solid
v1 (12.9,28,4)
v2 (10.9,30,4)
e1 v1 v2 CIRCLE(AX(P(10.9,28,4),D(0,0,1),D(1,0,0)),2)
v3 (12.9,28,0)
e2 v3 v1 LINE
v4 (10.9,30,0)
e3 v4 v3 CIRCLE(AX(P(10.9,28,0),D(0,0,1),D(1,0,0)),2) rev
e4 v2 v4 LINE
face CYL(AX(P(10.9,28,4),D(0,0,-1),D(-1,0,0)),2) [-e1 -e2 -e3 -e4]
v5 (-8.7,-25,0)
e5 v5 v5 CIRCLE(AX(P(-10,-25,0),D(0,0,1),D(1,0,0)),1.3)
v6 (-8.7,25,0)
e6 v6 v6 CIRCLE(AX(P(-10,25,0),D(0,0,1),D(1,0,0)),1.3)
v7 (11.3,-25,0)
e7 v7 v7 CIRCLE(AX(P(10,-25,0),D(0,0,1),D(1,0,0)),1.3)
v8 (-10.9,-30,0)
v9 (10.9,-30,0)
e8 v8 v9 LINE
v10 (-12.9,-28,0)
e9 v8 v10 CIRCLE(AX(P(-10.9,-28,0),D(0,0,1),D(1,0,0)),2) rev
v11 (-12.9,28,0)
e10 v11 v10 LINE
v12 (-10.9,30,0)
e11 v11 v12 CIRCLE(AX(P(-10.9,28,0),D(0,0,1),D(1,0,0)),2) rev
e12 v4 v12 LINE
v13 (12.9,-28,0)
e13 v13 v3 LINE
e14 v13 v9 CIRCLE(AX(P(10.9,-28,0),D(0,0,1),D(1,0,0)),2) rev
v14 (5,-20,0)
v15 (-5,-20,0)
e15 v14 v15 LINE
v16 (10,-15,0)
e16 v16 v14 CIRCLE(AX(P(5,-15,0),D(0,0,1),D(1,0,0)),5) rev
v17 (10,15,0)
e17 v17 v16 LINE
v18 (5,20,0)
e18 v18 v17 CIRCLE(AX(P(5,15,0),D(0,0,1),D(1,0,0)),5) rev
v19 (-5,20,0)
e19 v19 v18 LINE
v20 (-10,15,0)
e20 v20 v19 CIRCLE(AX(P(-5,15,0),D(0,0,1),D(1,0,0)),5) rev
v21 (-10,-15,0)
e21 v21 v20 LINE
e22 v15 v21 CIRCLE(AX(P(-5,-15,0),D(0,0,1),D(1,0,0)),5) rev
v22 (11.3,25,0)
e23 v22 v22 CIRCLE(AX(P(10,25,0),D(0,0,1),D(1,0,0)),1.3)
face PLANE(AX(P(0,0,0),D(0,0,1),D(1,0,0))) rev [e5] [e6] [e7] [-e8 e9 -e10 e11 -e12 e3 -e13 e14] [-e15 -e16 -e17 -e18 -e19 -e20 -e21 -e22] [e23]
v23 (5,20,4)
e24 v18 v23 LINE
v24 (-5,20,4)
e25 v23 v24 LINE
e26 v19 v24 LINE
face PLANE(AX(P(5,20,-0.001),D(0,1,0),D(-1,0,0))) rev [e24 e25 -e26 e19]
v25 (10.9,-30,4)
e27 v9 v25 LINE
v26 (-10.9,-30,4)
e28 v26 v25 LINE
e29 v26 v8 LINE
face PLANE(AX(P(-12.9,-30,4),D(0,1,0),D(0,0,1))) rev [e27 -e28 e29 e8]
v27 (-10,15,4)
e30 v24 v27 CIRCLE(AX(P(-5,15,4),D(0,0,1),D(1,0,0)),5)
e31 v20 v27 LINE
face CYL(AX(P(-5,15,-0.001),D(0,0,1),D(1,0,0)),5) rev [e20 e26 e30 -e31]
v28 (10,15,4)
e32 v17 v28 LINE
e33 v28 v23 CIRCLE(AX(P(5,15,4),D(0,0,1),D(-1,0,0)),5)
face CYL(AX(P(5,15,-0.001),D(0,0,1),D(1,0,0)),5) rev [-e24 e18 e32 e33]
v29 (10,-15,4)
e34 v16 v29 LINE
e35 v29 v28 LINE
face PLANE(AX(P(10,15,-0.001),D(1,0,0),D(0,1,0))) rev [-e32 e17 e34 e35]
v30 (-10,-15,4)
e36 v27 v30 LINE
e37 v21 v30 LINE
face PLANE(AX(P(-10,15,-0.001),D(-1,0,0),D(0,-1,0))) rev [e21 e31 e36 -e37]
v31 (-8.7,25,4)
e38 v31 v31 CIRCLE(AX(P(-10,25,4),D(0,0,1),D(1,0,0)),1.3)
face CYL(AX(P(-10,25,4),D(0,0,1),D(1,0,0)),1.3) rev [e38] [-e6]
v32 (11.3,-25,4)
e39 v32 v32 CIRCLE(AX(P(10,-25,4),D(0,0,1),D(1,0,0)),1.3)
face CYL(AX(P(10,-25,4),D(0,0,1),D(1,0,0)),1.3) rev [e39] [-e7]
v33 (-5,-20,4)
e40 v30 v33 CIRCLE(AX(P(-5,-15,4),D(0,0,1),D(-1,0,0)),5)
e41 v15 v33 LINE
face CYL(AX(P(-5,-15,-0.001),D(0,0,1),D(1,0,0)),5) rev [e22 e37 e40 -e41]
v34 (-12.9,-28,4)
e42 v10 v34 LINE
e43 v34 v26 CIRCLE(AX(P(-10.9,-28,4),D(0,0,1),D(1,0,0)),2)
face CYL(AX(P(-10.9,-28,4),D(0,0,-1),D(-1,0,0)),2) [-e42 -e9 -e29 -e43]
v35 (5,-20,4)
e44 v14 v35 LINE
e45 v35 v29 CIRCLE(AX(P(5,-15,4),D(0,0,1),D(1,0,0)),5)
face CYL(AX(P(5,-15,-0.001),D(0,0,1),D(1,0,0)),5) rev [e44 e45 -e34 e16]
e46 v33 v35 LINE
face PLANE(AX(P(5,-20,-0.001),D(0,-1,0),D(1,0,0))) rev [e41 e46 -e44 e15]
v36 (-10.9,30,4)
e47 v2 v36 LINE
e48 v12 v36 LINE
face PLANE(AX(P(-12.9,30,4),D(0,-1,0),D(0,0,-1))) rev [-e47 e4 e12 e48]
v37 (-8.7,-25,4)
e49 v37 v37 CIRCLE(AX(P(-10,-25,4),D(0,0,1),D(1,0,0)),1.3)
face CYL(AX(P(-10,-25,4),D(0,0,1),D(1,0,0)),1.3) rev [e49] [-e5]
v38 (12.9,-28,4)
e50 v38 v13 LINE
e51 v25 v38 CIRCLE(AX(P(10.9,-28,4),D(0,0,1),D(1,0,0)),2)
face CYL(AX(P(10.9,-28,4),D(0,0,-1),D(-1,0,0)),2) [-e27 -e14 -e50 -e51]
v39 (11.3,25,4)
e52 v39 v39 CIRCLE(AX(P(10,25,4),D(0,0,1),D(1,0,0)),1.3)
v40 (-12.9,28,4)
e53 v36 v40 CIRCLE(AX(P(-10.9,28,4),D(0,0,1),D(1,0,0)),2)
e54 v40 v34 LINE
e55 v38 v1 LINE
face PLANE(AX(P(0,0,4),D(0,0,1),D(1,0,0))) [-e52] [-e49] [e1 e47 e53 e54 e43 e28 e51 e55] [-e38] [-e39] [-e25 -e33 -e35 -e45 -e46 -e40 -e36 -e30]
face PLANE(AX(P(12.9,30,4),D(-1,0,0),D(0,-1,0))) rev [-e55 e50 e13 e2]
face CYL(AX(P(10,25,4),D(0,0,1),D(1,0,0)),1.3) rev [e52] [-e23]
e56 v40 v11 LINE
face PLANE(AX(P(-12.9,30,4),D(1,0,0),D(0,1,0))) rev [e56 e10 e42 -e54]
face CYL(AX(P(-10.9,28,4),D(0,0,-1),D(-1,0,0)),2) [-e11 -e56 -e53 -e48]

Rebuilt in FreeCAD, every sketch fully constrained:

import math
import FreeCAD as App
import Part
import Sketcher


def edges_at(feature, points):
    """Names of the edges that pass closest to the given points."""
    edges = feature.Shape.Edges
    near = lambda p: min(range(len(edges)), key=lambda i: edges[i].distToShape(Part.Vertex(*p))[0])
    return sorted({f"Edge{near(p) + 1}" for p in points})

doc = App.newDocument("Part")
params = doc.addObject("Spreadsheet::Sheet", "Params")
for row, (alias, value) in enumerate([
    ("sketch1_height", "60 mm"),
    ("sketch1_width", "25.8 mm"),
    ("pad1_length", "4 mm"),
    ("sketch2_diameter", "2.6 mm"),
    ("hole_diameter", "2.6 mm"),
    ("fillet_radius", "2 mm"),
    ("sketch3_radius", "5 mm"),
    ("sketch3_width", "10 mm"),
    ("sketch3_height", "30 mm"),
], start=1):
    params.set(f"A{row}", alias)
    params.set(f"B{row}", "=" + value)
    params.setAlias(f"B{row}", alias)

body = doc.addObject("PartDesign::Body", "Body")

# Sketch on XY plane
sketch1 = doc.addObject("Sketcher::SketchObject", "Sketch")
body.addObject(sketch1)
sketch1.AttachmentSupport = (doc.XY_Plane, [""])
sketch1.MapMode = "FlatFace"
sketch1.addGeometry([
    Part.LineSegment(App.Vector(-13, 30, 0), App.Vector(-13, -30, 0)),
    Part.LineSegment(App.Vector(-13, -30, 0), App.Vector(13, -30, 0)),
    Part.LineSegment(App.Vector(13, -30, 0), App.Vector(13, 30, 0)),
    Part.LineSegment(App.Vector(13, 30, 0), App.Vector(-13, 30, 0)),
], False)
sketch1.addConstraint([
    Sketcher.Constraint("Coincident", 0, 2, 1, 1),
    Sketcher.Constraint("Coincident", 1, 2, 2, 1),
    Sketcher.Constraint("Coincident", 2, 2, 3, 1),
    Sketcher.Constraint("Coincident", 3, 2, 0, 1),
    Sketcher.Constraint("Vertical", 0),
    Sketcher.Constraint("Horizontal", 1),
    Sketcher.Constraint("Vertical", 2),
    Sketcher.Constraint("Horizontal", 3),
    Sketcher.Constraint("Symmetric", 0, 2, 2, 2, -1, 1),
    Sketcher.Constraint("DistanceY", 0, 2, 0, 1, 60.0),
    Sketcher.Constraint("DistanceX", 1, 1, 1, 2, 25.8),
])
sketch1.setExpression("Constraints[9]", "Params.sketch1_height")
sketch1.setExpression("Constraints[10]", "Params.sketch1_width")
pad1 = doc.addObject("PartDesign::Pad", "Pad")
body.addObject(pad1)
pad1.Profile = sketch1
pad1.setExpression("Length", "Params.pad1_length")

# Sketch on XY plane
sketch2 = doc.addObject("Sketcher::SketchObject", "Sketch001")
body.addObject(sketch2)
sketch2.AttachmentSupport = (doc.XY_Plane, [""])
sketch2.MapMode = "FlatFace"
sketch2.AttachmentOffset = App.Placement(App.Vector(0, 0, 4), App.Rotation())
sketch2.addGeometry([
    Part.Circle(App.Vector(-10, 25, 0), App.Vector(0, 0, 1), 1.3),
    Part.Circle(App.Vector(10, 25, 0), App.Vector(0, 0, 1), 1.3),
    Part.Circle(App.Vector(10, -25, 0), App.Vector(0, 0, 1), 1.3),
    Part.Circle(App.Vector(-10, -25, 0), App.Vector(0, 0, 1), 1.3),
], False)
sketch2.addConstraint([
    Sketcher.Constraint("Equal", 0, 1),
    Sketcher.Constraint("Equal", 1, 2),
    Sketcher.Constraint("Equal", 2, 3),
    Sketcher.Constraint("Symmetric", 0, 3, 2, 3, -1, 1),
    Sketcher.Constraint("Symmetric", 1, 3, 3, 3, -1, 1),
    Sketcher.Constraint("Symmetric", 0, 3, 1, 3, -2),
    Sketcher.Constraint("Diameter", 0, 2.6),
    Sketcher.Constraint("DistanceX", 0, 3, -1, 1, 10.0),
    Sketcher.Constraint("DistanceY", -1, 1, 0, 3, 25.0),
])
sketch2.setExpression("Constraints[6]", "Params.sketch2_diameter")
doc.recompute()
hole = doc.addObject("PartDesign::Hole", "Hole")
body.addObject(hole)
hole.Profile = sketch2
hole.ThreadType = "None"
hole.setExpression("Diameter", "Params.hole_diameter")
hole.DepthType = "ThroughAll"
doc.recompute()

fillet = doc.addObject("PartDesign::Fillet", "Fillet")
body.addObject(fillet)
fillet.Base = (hole, edges_at(hole, [
    (12.9, -30, 2),
    (-12.9, -30, 2),
    (-12.9, 30, 2),
    (12.9, 30, 2),
]))
fillet.setExpression("Radius", "Params.fillet_radius")

# Sketch on XY plane
sketch3 = doc.addObject("Sketcher::SketchObject", "Sketch002")
body.addObject(sketch3)
sketch3.AttachmentSupport = (doc.XY_Plane, [""])
sketch3.MapMode = "FlatFace"
sketch3.AttachmentOffset = App.Placement(App.Vector(0, 0, 4), App.Rotation())
sketch3.addGeometry([
    Part.LineSegment(App.Vector(5, 20, 0), App.Vector(-5, 20, 0)),  # 0
    Part.ArcOfCircle(Part.Circle(App.Vector(-5, 15, 0), App.Vector(0, 0, 1), 5), math.radians(90), math.radians(180)),  # 1
    Part.LineSegment(App.Vector(-10, 15, 0), App.Vector(-10, -15, 0)),  # 2
    Part.ArcOfCircle(Part.Circle(App.Vector(-5, -15, 0), App.Vector(0, 0, 1), 5), math.radians(180), math.radians(270)),  # 3
    Part.LineSegment(App.Vector(-5, -20, 0), App.Vector(5, -20, 0)),  # 4
    Part.ArcOfCircle(Part.Circle(App.Vector(5, -15, 0), App.Vector(0, 0, 1), 5), math.radians(-90), math.radians(0)),  # 5
    Part.LineSegment(App.Vector(10, -15, 0), App.Vector(10, 15, 0)),  # 6
    Part.ArcOfCircle(Part.Circle(App.Vector(5, 15, 0), App.Vector(0, 0, 1), 5), math.radians(0), math.radians(90)),  # 7
], False)
sketch3.addConstraint([
    Sketcher.Constraint("Tangent", 0, 2, 1, 1),
    Sketcher.Constraint("Tangent", 1, 2, 2, 1),
    Sketcher.Constraint("Tangent", 2, 2, 3, 1),
    Sketcher.Constraint("Tangent", 3, 2, 4, 1),
    Sketcher.Constraint("Tangent", 4, 2, 5, 1),
    Sketcher.Constraint("Tangent", 5, 2, 6, 1),
    Sketcher.Constraint("Tangent", 6, 2, 7, 1),
    Sketcher.Constraint("Tangent", 7, 2, 0, 1),
    Sketcher.Constraint("Horizontal", 0),
    Sketcher.Constraint("Vertical", 2),
    Sketcher.Constraint("Horizontal", 4),
    Sketcher.Constraint("Vertical", 6),
    Sketcher.Constraint("Equal", 1, 3),
    Sketcher.Constraint("Equal", 3, 5),
    Sketcher.Constraint("Equal", 5, 7),
    Sketcher.Constraint("Symmetric", 1, 3, 5, 3, -1, 1),
    Sketcher.Constraint("Radius", 1, 5.0),
    Sketcher.Constraint("DistanceX", 0, 2, 0, 1, 10.0),
    Sketcher.Constraint("DistanceY", 2, 2, 2, 1, 30.0),
])
sketch3.setExpression("Constraints[16]", "Params.sketch3_radius")
sketch3.setExpression("Constraints[17]", "Params.sketch3_width")
sketch3.setExpression("Constraints[18]", "Params.sketch3_height")
pocket1 = doc.addObject("PartDesign::Pocket", "Pocket")
body.addObject(pocket1)
pocket1.Profile = sketch3
pocket1.Type = "UpToFirst"

doc.recompute()
